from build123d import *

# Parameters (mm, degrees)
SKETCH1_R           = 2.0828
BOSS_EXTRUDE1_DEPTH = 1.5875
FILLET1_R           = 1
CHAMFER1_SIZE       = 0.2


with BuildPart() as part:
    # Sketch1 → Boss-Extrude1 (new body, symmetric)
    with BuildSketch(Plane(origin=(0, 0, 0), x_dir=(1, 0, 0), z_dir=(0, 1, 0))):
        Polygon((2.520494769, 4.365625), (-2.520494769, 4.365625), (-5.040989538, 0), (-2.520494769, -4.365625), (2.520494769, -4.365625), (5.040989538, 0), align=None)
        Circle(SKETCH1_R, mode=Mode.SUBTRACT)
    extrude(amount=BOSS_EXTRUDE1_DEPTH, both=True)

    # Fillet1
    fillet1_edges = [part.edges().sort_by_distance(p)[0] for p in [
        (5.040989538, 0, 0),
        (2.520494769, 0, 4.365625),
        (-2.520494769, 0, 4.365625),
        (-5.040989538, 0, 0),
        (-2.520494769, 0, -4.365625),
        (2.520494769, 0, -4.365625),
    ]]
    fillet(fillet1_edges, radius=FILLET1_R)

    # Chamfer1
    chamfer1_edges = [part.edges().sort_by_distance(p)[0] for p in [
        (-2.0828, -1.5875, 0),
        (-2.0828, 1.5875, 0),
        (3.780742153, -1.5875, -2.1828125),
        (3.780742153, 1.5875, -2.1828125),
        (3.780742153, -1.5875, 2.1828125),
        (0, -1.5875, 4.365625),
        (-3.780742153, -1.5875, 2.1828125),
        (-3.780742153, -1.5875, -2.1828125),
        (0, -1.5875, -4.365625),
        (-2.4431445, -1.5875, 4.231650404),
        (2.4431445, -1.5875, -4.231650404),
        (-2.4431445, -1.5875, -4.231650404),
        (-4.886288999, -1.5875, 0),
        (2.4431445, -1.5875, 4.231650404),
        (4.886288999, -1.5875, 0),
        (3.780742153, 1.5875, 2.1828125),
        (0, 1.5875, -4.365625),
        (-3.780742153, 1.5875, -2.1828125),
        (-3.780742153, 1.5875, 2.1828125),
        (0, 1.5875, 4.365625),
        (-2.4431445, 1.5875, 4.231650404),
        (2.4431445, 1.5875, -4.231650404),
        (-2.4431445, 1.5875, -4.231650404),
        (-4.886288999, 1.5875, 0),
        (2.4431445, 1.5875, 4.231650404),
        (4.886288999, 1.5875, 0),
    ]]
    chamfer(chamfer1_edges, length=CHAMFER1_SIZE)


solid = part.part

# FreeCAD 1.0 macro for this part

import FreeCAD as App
import Part
import Sketcher
Q = App.Units.Quantity


def edges_at(feature, points):
    """Names of the edges that pass closest to the given points."""
    edges = feature.Shape.Edges
    near = lambda p: min(range(len(edges)), key=lambda i: edges[i].distToShape(Part.Vertex(*p))[0])
    return sorted({f"Edge{near(p) + 1}" for p in points})


def add_polygon(sketch, points):
    """Adds a closed chain of lines whose ends are joined by coincident constraints."""
    first, n = sketch.GeometryCount, len(points)
    for a, b in zip(points, points[1:] + points[:1]):
        sketch.addGeometry(Part.LineSegment(App.Vector(*a, 0), App.Vector(*b, 0)), False)
    for i in range(n):
        sketch.addConstraint(Sketcher.Constraint("Coincident", first + i, 2, first + (i + 1) % n, 1))

doc = App.newDocument("Part")
params = doc.addObject("Spreadsheet::Sheet", "Params")
for row, (alias, value) in enumerate([
    ("pad1_length", "3.175 mm"),
    ("fillet_radius", "1 mm"),
    ("chamfer_size", "0.2 mm"),
], start=1):
    params.set(f"A{row}", alias)
    params.set(f"B{row}", "=" + value)
    params.setAlias(f"B{row}", alias)

body = doc.addObject("PartDesign::Body", "Body")

# Sketch on XZ plane
sketch1 = body.newObject("Sketcher::SketchObject", "Sketch")
sketch1.AttachmentSupport = (doc.getObject("XZ_Plane"), [""])
sketch1.MapMode = "FlatFace"
add_polygon(sketch1, [(2.5, -4.4), (-2.5, -4.4), (-5, 0), (-2.5, 4.4), (2.5, 4.4), (5, 0)])  # lines 0-5
sketch1.addGeometry(Part.Circle(App.Vector(0, 0, 0), App.Vector(0, 0, 1), 2.1), False)  # 6
sketch1.addConstraint(Sketcher.Constraint("Horizontal", 0))
sketch1.addConstraint(Sketcher.Constraint("Horizontal", 3))
sketch1.addConstraint(Sketcher.Constraint("Coincident", 6, 3, -1, 1))
sketch1.addConstraint(Sketcher.Constraint("Symmetric", 0, 2, 3, 2, -1, 1))
sketch1.addConstraint(Sketcher.Constraint("Symmetric", 1, 2, 4, 2, -1, 1))
sketch1.addConstraint(Sketcher.Constraint("PointOnObject", 1, 2, -1))
sketch1.addConstraint(Sketcher.Constraint("Parallel", 2, 5))
sketch1.addConstraint(Sketcher.Constraint("Vertical", 0, 2, 2, 2))
sketch1.addConstraint(Sketcher.Constraint("Angle", 1, Q("120 deg")))
sketch1.addConstraint(Sketcher.Constraint("Diameter", 6, Q("4.1656 mm")))
sketch1.addConstraint(Sketcher.Constraint("DistanceX", 0, 2, 0, 1, Q("5.04099 mm")))
sketch1.addConstraint(Sketcher.Constraint("Distance", 1, Q("5.04099 mm")))
pad1 = body.newObject("PartDesign::Pad", "Pad")
pad1.Profile = sketch1
pad1.setExpression("Length", "Params.pad1_length")
pad1.Midplane = True
doc.recompute()

fillet = body.newObject("PartDesign::Fillet", "Fillet")
fillet.Base = (pad1, edges_at(pad1, [
    (5.041, 0, 0),
    (2.52, 0, 4.366),
    (-2.52, 0, 4.366),
    (-5.041, 0, 0),
    (-2.52, 0, -4.366),
    (2.52, 0, -4.366),
]))
fillet.setExpression("Radius", "Params.fillet_radius")
doc.recompute()

chamfer = body.newObject("PartDesign::Chamfer", "Chamfer")
chamfer.Base = (fillet, edges_at(fillet, [
    (-2.083, -1.587, 0),
    (-2.083, 1.587, 0),
    (3.781, -1.587, -2.183),
    (3.781, 1.587, -2.183),
    (3.781, -1.587, 2.183),
    (0, -1.587, 4.366),
    (-3.781, -1.587, 2.183),
    (-3.781, -1.587, -2.183),
    (0, -1.587, -4.366),
    (-2.443, -1.587, 4.232),
    (2.443, -1.587, -4.232),
    (-2.443, -1.587, -4.232),
    (-4.886, -1.587, 0),
    (2.443, -1.587, 4.232),
    (4.886, -1.587, 0),
    (3.781, 1.587, 2.183),
    (0, 1.587, -4.366),
    (-3.781, 1.587, -2.183),
    (-3.781, 1.587, 2.183),
    (0, 1.587, 4.366),
    (-2.443, 1.587, 4.232),
    (2.443, 1.587, -4.232),
    (-2.443, 1.587, -4.232),
    (-4.886, 1.587, 0),
    (2.443, 1.587, 4.232),
    (4.886, 1.587, 0),
]))
chamfer.setExpression("Size", "Params.chamfer_size")

doc.recompute()
